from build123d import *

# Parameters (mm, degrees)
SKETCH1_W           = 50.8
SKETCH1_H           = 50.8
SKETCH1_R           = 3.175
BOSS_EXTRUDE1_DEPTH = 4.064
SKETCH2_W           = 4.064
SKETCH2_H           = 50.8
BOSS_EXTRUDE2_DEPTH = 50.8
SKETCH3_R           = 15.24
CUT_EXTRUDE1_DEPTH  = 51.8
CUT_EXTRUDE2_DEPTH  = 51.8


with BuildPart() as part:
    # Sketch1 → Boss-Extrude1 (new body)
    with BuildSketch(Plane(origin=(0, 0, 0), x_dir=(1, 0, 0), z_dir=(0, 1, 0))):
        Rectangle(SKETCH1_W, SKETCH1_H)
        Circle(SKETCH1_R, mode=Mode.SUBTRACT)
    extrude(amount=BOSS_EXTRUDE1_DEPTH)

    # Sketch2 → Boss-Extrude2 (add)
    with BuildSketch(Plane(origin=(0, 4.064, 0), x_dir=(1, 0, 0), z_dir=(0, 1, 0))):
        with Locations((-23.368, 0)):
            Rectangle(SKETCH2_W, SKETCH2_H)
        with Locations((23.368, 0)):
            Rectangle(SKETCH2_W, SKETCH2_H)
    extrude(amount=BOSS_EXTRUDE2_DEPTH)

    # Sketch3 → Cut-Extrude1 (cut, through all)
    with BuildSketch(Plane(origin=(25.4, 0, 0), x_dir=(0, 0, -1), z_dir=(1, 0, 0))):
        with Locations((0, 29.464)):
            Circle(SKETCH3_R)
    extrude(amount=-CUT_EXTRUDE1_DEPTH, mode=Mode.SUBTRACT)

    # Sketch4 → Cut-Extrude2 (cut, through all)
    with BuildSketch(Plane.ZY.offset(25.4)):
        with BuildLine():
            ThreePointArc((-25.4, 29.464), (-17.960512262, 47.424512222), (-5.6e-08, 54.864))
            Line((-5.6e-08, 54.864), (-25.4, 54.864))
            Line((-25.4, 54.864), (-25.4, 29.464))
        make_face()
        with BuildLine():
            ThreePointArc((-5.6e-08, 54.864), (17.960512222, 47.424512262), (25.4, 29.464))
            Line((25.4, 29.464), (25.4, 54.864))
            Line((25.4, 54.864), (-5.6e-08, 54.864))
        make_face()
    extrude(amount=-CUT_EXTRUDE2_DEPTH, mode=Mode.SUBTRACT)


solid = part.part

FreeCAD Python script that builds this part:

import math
import FreeCAD as App
import Part
import Sketcher
from FreeCAD import Vector
Q = App.Units.Quantity


def add_polygon(sketch, points):
    """Adds a closed chain of lines whose ends are joined by coincident constraints."""
    first, n = sketch.GeometryCount, len(points)
    for a, b in zip(points, points[1:] + points[:1]):
        sketch.addGeometry(Part.LineSegment(App.Vector(*a, 0), App.Vector(*b, 0)), False)
    for i in range(n):
        sketch.addConstraint(Sketcher.Constraint("Coincident", first + i, 2, first + (i + 1) % n, 1))

doc = App.newDocument("Part")
body = doc.addObject("PartDesign::Body", "Body")

sketch1 = body.newObject("Sketcher::SketchObject", "Sketch")
sketch1.AttachmentSupport = (doc.getObject("XZ_Plane"), [""])
sketch1.MapMode = "FlatFace"
add_polygon(sketch1, [(-25.4, -25.4), (-25.4, 25.4), (25.4, 25.4), (25.4, -25.4)])
sketch1.addGeometry(Part.Circle(Vector(0, 0, 0), Vector(0, 0, 1), 3.175), False)
sketch1.addConstraint(Sketcher.Constraint("Vertical", 0))
sketch1.addConstraint(Sketcher.Constraint("Horizontal", 1))
sketch1.addConstraint(Sketcher.Constraint("Vertical", 2))
sketch1.addConstraint(Sketcher.Constraint("Horizontal", 3))
sketch1.addConstraint(Sketcher.Constraint("Coincident", 4, 3, -1, 1))
sketch1.addConstraint(Sketcher.Constraint("Symmetric", 0, 2, 2, 2, -1, 1))
sketch1.addConstraint(Sketcher.Constraint("Equal", 3, 0))
sketch1.addConstraint(Sketcher.Constraint("Diameter", 4, Q("0.25 in")))
sketch1.addConstraint(Sketcher.Constraint("DistanceX", 1, 1, 1, 2, Q("2 in")))
pad1 = body.newObject("PartDesign::Pad", "Pad")
pad1.Profile = sketch1
pad1.Length = Q("0.16 in")
pad1.Reversed = True

sketch2 = body.newObject("Sketcher::SketchObject", "Sketch001")
sketch2.AttachmentSupport = (doc.getObject("XZ_Plane"), [""])
sketch2.MapMode = "FlatFace"
sketch2.AttachmentOffset = App.Placement(Vector(0, 0, -0.16 * 25.4), App.Rotation())
add_polygon(sketch2, [(-25.4, -25.4), (-25.4, 25.4), (-21.336, 25.4), (-21.336, -25.4)])
add_polygon(sketch2, [(21.336, -25.4), (21.336, 25.4), (25.4, 25.4), (25.4, -25.4)])
sketch2.addConstraint(Sketcher.Constraint("Vertical", 0))
sketch2.addConstraint(Sketcher.Constraint("Horizontal", 1))
sketch2.addConstraint(Sketcher.Constraint("Vertical", 2))
sketch2.addConstraint(Sketcher.Constraint("Horizontal", 3))
sketch2.addConstraint(Sketcher.Constraint("Vertical", 4))
sketch2.addConstraint(Sketcher.Constraint("Horizontal", 5))
sketch2.addConstraint(Sketcher.Constraint("Vertical", 6))
sketch2.addConstraint(Sketcher.Constraint("Horizontal", 7))
sketch2.addConstraint(Sketcher.Constraint("Symmetric", 2, 2, 4, 2, -1, 1))
sketch2.addConstraint(Sketcher.Constraint("Symmetric", 0, 2, 6, 2, -1, 1))
sketch2.addConstraint(Sketcher.Constraint("Horizontal", 1, 2, 4, 2))
sketch2.addConstraint(Sketcher.Constraint("DistanceY", 0, 1, 0, 2, Q("2 in")))
sketch2.addConstraint(Sketcher.Constraint("DistanceX", 0, 2, -1, 1, Q("1 in")))
sketch2.addConstraint(Sketcher.Constraint("DistanceX", 1, 1, 1, 2, Q("0.16 in")))
pad2 = body.newObject("PartDesign::Pad", "Pad001")
pad2.Profile = sketch2
pad2.Length = Q("2 in")
pad2.Reversed = True

sketch3 = body.newObject("Sketcher::SketchObject", "Sketch002")
sketch3.AttachmentSupport = (doc.getObject("YZ_Plane"), [""])
sketch3.MapMode = "FlatFace"
sketch3.AttachmentOffset = App.Placement(Vector(0, 0, 1 * 25.4), App.Rotation())
sketch3.addGeometry(Part.Circle(Vector(29.464, 0, 0), Vector(0, 0, 1), 15.24), False)
sketch3.addConstraint(Sketcher.Constraint("PointOnObject", 0, 3, -1))
sketch3.addConstraint(Sketcher.Constraint("Diameter", 0, Q("1.2 in")))
sketch3.addConstraint(Sketcher.Constraint("DistanceX", -1, 1, 0, 3, Q("1.16 in")))
pocket1 = body.newObject("PartDesign::Pocket", "Pocket")
pocket1.Profile = sketch3
pocket1.Type = "ThroughAll"

sketch4 = body.newObject("Sketcher::SketchObject", "Sketch003")
sketch4.AttachmentSupport = (doc.getObject("YZ_Plane"), [""])
sketch4.MapMode = "FlatFace"
sketch4.AttachmentOffset = App.Placement(Vector(0, 0, -1 * 25.4), App.Rotation())
sketch4.addGeometry(Part.ArcOfCircle(Part.Circle(Vector(29.464, 0, 0), Vector(0, 0, 1), 25.4), math.radians(-90), math.radians(0)), False)
sketch4.addGeometry(Part.LineSegment(Vector(54.864, 0, 0), Vector(54.864, -25.4, 0)), False)
sketch4.addGeometry(Part.LineSegment(Vector(54.864, -25.4, 0), Vector(29.464, -25.4, 0)), False)
sketch4.addGeometry(Part.ArcOfCircle(Part.Circle(Vector(29.464, 0, 0), Vector(0, 0, 1), 25.4), math.radians(0), math.radians(90)), False)
sketch4.addGeometry(Part.LineSegment(Vector(29.464, 25.4, 0), Vector(54.864, 25.4, 0)), False)
sketch4.addGeometry(Part.LineSegment(Vector(54.864, 25.4, 0), Vector(54.864, 0, 0)), False)
sketch4.addConstraint(Sketcher.Constraint("Tangent", 0, 2, 1, 1))
sketch4.addConstraint(Sketcher.Constraint("Coincident", 1, 2, 2, 1))
sketch4.addConstraint(Sketcher.Constraint("Tangent", 2, 2, 0, 1))
sketch4.addConstraint(Sketcher.Constraint("Tangent", 3, 2, 4, 1))
sketch4.addConstraint(Sketcher.Constraint("Coincident", 4, 2, 5, 1))
sketch4.addConstraint(Sketcher.Constraint("Tangent", 5, 2, 3, 1))
sketch4.addConstraint(Sketcher.Constraint("Vertical", 1))
sketch4.addConstraint(Sketcher.Constraint("Horizontal", 2))
sketch4.addConstraint(Sketcher.Constraint("Horizontal", 4))
sketch4.addConstraint(Sketcher.Constraint("Vertical", 5))
sketch4.addConstraint(Sketcher.Constraint("Coincident", 3, 3, 0, 3))
sketch4.addConstraint(Sketcher.Constraint("Equal", 0, 3))
sketch4.addConstraint(Sketcher.Constraint("PointOnObject", 0, 3, -1))
sketch4.addConstraint(Sketcher.Constraint("Radius", 0, Q("1 in")))
sketch4.addConstraint(Sketcher.Constraint("DistanceX", -1, 1, 0, 3, Q("1.16 in")))
pocket2 = body.newObject("PartDesign::Pocket", "Pocket001")
pocket2.Profile = sketch4
pocket2.Type = "ThroughAll"
pocket2.Reversed = True

doc.recompute()
